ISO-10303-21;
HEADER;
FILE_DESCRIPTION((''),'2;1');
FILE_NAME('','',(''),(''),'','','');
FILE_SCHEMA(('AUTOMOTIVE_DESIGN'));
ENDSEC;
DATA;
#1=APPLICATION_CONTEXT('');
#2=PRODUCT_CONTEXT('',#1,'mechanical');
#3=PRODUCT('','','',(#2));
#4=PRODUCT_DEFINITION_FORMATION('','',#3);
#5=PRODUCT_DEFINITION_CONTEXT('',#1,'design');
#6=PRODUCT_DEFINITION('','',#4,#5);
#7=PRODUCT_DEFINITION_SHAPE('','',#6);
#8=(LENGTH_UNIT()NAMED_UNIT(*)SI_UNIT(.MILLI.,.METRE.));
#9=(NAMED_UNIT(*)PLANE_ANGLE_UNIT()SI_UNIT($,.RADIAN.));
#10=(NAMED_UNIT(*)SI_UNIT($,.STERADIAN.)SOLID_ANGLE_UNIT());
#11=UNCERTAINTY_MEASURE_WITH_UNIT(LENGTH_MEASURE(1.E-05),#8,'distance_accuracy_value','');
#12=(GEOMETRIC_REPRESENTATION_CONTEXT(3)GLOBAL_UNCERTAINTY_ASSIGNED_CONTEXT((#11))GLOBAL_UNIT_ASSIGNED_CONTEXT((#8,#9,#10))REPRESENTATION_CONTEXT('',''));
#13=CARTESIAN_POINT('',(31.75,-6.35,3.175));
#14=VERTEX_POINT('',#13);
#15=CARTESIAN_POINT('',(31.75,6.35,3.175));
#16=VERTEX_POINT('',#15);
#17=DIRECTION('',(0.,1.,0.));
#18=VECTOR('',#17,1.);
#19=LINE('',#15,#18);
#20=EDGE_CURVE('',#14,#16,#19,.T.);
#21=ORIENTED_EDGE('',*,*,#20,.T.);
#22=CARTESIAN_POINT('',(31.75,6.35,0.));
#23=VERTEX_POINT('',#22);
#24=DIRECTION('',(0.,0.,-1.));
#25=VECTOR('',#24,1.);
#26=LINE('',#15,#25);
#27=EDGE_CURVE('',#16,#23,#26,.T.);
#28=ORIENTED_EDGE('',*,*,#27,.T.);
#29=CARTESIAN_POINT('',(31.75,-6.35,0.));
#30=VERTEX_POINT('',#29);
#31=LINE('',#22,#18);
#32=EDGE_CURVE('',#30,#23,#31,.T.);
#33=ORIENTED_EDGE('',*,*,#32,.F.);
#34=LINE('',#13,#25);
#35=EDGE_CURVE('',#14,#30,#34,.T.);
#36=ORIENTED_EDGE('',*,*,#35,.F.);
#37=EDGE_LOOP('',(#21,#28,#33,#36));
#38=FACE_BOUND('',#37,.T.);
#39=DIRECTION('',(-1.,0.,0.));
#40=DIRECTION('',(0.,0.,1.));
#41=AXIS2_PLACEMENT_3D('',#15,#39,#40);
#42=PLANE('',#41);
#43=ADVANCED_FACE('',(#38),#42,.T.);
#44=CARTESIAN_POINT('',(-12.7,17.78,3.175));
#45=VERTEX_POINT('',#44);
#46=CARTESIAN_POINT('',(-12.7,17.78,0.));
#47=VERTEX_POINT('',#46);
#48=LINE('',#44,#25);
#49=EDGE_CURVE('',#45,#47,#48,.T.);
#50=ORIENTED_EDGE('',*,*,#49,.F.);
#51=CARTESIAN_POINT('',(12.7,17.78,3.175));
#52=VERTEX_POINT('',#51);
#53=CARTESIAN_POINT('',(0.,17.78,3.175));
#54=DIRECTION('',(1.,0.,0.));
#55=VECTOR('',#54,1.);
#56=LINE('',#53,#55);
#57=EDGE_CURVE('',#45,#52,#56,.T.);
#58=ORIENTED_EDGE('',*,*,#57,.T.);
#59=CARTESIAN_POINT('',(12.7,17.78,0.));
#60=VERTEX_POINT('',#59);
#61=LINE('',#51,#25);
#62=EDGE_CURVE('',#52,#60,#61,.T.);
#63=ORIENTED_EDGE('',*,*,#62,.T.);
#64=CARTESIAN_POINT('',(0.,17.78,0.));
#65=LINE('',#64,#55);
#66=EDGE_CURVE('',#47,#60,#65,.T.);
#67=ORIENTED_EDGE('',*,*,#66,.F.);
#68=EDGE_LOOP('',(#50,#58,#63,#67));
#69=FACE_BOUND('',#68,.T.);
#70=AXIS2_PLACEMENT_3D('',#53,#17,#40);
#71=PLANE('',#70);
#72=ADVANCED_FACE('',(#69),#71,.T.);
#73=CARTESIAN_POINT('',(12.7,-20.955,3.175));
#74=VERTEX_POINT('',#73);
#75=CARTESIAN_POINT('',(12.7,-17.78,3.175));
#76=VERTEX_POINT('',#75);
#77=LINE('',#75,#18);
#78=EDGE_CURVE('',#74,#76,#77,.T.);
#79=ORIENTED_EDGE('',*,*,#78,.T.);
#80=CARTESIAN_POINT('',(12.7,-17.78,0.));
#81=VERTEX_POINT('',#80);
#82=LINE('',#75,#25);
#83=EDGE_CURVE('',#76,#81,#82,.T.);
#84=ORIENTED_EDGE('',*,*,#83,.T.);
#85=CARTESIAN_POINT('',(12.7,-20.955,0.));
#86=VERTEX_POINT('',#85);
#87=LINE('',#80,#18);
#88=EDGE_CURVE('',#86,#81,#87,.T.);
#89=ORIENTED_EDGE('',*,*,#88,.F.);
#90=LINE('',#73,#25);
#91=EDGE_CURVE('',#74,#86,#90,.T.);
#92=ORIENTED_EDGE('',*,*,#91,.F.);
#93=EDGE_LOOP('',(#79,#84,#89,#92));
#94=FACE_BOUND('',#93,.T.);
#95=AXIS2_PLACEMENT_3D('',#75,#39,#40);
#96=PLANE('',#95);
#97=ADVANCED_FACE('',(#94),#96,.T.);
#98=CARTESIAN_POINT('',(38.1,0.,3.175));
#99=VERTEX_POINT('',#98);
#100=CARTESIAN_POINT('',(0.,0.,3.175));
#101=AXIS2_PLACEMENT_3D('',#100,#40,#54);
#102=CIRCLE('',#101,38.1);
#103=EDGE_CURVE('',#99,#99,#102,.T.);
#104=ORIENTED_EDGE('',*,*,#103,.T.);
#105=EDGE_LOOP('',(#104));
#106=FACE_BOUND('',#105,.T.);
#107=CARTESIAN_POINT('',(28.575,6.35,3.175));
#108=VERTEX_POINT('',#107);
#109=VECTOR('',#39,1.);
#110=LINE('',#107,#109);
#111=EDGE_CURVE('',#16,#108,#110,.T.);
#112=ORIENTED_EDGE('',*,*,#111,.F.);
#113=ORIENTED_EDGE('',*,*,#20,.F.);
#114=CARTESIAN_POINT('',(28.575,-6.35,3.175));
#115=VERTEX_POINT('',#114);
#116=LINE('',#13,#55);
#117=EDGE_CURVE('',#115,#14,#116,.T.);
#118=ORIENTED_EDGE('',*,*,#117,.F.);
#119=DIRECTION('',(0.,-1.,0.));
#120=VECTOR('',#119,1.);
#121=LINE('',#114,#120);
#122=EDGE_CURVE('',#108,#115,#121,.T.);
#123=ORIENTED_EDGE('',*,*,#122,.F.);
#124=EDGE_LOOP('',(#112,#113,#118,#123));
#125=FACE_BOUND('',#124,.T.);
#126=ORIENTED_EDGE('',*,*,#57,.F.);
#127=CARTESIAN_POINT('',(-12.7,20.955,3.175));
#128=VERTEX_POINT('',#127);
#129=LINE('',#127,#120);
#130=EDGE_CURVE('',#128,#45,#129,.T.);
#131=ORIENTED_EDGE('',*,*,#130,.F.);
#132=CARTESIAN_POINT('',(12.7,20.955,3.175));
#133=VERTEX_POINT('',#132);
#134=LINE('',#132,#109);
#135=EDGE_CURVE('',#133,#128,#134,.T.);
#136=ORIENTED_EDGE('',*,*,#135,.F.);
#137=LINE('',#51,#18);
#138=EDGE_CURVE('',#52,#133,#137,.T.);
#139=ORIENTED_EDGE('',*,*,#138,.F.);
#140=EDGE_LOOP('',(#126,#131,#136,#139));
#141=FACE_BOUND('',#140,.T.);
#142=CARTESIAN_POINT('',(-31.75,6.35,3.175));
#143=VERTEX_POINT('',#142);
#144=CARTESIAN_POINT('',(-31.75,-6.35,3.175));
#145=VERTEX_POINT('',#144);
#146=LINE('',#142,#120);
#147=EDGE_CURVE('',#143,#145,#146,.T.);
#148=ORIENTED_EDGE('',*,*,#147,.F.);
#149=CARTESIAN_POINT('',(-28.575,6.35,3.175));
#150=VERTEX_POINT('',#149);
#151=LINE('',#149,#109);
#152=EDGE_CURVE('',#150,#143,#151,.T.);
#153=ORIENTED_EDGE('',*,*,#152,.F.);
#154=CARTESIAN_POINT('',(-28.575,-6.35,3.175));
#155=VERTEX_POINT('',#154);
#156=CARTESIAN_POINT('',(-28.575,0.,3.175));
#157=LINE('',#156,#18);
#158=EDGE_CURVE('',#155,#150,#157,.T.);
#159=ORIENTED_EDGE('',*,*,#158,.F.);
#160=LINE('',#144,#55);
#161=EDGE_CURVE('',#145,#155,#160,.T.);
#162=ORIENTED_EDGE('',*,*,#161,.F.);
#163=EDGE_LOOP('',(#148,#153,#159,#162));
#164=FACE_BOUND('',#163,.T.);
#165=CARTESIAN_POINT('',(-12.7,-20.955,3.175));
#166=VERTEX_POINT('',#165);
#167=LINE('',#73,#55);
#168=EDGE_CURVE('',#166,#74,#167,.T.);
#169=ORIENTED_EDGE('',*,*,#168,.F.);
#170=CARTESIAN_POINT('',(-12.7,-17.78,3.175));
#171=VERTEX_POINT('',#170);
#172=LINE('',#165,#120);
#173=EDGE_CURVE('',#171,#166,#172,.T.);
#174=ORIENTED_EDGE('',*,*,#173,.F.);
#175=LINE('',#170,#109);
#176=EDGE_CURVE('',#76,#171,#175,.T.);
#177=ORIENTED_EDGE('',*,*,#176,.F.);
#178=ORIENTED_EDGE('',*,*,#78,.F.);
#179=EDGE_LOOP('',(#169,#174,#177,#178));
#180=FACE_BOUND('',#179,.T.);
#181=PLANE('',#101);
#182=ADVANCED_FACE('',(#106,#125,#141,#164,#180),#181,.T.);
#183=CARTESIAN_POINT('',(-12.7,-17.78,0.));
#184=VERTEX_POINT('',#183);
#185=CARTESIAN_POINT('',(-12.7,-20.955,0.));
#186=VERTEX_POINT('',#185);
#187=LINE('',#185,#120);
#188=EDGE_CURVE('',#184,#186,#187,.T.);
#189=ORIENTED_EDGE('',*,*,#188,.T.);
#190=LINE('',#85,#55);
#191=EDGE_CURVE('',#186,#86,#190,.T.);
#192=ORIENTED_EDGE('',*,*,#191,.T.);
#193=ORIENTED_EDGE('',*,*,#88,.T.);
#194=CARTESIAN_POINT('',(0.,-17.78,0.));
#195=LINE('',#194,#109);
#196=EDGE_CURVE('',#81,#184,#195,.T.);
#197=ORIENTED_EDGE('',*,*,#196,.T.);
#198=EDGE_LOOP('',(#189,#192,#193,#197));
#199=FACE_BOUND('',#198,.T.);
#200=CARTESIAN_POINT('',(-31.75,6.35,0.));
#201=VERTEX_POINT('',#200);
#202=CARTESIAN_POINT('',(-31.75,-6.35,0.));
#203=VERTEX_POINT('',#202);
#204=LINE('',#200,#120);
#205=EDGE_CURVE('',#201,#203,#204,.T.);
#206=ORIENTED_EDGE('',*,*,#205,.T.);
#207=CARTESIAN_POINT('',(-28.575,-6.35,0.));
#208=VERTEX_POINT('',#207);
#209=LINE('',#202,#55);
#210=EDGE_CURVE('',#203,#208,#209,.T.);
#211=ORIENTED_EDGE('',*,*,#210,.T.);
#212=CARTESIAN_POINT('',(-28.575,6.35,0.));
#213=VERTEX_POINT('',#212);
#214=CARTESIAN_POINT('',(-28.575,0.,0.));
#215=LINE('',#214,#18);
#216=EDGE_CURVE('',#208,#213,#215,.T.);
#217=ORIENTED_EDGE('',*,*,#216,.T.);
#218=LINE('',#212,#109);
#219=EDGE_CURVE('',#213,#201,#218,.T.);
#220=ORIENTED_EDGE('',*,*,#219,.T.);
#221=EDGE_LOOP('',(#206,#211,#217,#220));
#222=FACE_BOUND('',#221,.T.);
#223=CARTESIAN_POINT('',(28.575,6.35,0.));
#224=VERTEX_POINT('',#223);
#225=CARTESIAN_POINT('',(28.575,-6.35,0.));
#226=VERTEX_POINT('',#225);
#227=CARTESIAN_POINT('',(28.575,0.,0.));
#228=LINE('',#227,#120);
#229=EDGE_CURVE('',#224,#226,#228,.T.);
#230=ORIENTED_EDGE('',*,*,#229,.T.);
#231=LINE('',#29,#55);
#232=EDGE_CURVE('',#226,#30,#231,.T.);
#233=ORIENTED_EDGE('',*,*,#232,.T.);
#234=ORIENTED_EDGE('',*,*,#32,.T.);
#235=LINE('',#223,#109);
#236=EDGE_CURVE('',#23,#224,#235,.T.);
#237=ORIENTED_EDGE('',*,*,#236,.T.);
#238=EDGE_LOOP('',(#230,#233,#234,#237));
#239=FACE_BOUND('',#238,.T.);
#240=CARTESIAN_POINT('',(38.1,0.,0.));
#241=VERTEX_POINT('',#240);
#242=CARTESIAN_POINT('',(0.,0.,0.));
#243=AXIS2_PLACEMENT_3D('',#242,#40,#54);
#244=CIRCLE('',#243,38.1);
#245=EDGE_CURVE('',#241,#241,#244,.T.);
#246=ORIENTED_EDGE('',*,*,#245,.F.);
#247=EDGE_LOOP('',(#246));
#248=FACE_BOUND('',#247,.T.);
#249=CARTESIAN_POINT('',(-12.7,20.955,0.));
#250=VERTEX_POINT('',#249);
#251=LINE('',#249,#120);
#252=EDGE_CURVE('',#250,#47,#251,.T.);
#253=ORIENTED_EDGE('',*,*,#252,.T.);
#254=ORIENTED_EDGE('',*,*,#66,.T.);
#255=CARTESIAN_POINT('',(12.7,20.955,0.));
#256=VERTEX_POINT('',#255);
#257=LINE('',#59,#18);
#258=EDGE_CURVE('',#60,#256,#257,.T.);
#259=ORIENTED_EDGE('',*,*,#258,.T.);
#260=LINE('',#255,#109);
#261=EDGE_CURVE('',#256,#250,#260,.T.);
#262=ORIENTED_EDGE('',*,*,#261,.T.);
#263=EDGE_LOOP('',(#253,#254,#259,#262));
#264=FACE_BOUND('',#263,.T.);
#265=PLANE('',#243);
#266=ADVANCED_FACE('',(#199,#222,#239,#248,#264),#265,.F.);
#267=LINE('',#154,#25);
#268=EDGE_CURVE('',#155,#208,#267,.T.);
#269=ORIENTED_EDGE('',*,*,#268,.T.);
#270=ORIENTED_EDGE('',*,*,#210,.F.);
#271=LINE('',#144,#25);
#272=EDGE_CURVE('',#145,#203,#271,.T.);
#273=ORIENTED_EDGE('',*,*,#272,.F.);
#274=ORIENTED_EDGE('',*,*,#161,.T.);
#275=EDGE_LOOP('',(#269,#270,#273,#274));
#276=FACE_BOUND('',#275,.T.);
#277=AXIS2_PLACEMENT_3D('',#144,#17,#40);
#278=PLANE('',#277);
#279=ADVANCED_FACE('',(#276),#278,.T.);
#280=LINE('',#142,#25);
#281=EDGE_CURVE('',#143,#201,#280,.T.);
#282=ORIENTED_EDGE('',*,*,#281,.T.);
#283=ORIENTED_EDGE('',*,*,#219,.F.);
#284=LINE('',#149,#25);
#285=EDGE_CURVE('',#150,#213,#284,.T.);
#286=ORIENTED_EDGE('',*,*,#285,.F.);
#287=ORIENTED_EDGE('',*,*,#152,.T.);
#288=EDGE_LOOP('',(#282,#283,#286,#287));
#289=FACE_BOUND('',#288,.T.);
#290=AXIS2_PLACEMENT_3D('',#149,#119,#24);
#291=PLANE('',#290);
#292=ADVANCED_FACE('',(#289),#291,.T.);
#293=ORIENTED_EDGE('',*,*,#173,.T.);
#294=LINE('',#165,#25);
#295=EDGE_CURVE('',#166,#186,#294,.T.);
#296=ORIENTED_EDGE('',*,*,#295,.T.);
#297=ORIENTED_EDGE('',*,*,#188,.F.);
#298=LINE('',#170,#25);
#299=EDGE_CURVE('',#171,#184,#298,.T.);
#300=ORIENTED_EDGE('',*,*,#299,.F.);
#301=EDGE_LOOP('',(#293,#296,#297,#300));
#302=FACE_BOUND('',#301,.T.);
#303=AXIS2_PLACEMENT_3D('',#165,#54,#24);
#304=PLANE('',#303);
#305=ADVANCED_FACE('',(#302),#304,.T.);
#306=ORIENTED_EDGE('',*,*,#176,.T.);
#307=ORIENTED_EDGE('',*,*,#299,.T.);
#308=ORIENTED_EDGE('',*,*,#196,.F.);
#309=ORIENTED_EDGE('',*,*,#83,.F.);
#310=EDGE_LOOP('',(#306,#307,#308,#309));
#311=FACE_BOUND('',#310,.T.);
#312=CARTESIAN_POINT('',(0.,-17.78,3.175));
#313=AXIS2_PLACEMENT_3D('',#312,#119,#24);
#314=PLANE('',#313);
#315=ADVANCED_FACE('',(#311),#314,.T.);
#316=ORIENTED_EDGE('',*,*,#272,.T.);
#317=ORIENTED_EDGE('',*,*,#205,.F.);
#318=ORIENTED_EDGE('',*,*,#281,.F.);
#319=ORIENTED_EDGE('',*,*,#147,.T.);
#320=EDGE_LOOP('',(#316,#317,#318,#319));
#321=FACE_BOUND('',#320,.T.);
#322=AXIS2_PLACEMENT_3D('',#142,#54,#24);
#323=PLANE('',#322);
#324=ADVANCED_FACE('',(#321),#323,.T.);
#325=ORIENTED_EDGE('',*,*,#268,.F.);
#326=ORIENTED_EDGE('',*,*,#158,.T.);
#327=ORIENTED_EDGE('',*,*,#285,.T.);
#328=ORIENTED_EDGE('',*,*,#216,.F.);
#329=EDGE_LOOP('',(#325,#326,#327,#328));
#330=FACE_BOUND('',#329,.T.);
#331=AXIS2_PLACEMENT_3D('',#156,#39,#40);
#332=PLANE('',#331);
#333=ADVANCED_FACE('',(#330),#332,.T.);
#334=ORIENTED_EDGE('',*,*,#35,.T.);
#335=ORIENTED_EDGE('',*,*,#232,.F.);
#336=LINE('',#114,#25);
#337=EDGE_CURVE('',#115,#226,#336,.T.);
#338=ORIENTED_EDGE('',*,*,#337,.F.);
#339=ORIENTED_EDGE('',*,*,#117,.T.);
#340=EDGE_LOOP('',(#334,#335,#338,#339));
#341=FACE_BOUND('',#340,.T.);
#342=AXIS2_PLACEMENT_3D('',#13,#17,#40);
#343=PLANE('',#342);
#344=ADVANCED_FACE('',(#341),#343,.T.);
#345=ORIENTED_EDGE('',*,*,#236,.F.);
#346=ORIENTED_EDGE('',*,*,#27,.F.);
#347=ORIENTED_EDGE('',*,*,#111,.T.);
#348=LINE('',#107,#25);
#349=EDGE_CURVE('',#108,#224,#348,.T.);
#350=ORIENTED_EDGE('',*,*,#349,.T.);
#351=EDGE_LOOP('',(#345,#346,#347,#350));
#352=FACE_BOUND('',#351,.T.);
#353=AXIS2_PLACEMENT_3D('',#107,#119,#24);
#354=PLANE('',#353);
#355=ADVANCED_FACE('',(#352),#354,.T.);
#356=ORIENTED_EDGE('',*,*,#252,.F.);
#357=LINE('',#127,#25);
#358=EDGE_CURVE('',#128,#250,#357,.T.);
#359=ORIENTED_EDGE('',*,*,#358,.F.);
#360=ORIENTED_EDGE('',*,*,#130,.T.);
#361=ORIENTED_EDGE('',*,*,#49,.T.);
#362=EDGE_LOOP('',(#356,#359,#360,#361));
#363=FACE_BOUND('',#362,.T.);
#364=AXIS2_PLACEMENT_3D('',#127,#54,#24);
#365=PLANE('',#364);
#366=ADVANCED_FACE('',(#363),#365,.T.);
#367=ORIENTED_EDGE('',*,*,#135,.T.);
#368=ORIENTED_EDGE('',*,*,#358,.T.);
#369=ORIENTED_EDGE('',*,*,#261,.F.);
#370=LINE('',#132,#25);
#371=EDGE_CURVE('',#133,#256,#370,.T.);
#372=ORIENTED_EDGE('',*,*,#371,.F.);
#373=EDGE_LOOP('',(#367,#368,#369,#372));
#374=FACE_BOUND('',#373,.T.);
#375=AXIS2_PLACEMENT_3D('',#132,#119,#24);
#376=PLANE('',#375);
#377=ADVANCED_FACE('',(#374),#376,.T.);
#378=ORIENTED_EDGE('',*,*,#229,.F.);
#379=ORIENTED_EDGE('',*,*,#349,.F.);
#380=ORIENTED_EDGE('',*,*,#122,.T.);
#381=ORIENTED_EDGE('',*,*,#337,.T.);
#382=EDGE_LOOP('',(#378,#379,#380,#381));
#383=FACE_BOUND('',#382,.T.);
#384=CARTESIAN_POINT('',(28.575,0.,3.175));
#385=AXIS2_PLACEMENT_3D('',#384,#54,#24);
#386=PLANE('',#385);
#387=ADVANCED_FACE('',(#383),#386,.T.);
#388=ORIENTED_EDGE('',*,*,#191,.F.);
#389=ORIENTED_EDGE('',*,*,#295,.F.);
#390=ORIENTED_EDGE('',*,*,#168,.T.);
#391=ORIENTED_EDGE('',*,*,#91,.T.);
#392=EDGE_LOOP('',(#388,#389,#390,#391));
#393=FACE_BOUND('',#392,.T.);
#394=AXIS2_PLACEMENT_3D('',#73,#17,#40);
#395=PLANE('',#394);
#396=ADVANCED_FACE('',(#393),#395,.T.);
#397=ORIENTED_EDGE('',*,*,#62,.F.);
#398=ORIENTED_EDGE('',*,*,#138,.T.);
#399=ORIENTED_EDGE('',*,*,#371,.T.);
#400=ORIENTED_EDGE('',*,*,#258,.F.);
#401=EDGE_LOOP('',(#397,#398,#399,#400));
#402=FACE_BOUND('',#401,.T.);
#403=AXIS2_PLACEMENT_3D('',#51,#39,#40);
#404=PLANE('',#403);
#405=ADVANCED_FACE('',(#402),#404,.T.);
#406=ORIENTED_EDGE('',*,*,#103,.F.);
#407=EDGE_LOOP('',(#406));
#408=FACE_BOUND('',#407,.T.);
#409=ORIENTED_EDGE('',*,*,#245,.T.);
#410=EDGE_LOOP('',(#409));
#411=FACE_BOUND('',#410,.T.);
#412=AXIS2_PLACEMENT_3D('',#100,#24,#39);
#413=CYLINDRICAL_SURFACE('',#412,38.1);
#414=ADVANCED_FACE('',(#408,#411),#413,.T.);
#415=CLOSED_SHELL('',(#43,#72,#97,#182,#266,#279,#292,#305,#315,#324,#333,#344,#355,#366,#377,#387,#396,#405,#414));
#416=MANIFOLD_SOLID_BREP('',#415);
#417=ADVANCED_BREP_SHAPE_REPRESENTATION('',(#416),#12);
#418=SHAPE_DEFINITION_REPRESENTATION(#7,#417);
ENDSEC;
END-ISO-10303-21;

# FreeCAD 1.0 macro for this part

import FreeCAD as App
import Part
import Sketcher
Q = App.Units.Quantity


def add_polygon(sketch, points):
    """Adds a closed chain of lines whose ends are joined by coincident constraints."""
    first, n = sketch.GeometryCount, len(points)
    for a, b in zip(points, points[1:] + points[:1]):
        sketch.addGeometry(Part.LineSegment(App.Vector(*a, 0), App.Vector(*b, 0)), False)
    for i in range(n):
        sketch.addConstraint(Sketcher.Constraint("Coincident", first + i, 2, first + (i + 1) % n, 1))

doc = App.newDocument("Part")
body = doc.addObject("PartDesign::Body", "Body")

# Sketch on XY plane
sketch1 = body.newObject("Sketcher::SketchObject", "Sketch")
sketch1.AttachmentSupport = (doc.getObject("XY_Plane"), [""])
sketch1.MapMode = "FlatFace"
sketch1.addGeometry(Part.Circle(App.Vector(0, 0, 0), App.Vector(0, 0, 1), 38), False)
sketch1.addConstraint(Sketcher.Constraint("Coincident", 0, 3, -1, 1))
sketch1.addConstraint(Sketcher.Constraint("Diameter", 0, Q("3 in")))
pad1 = body.newObject("PartDesign::Pad", "Pad")
pad1.Profile = sketch1
pad1.Length = Q("0.125 in")

# Sketch on XY plane
sketch2 = body.newObject("Sketcher::SketchObject", "Sketch001")
sketch2.AttachmentSupport = (doc.getObject("XY_Plane"), [""])
sketch2.MapMode = "FlatFace"
add_polygon(sketch2, [(12.7, 17.8), (12.7, 21), (-12.7, 21), (-12.7, 17.8)])  # lines 0-3
add_polygon(sketch2, [(12.7, -17.8), (-12.7, -17.8), (-12.7, -21), (12.7, -21)])  # lines 4-7
add_polygon(sketch2, [(-28.6, -6.3), (-28.6, 6.3), (-31.8, 6.3), (-31.8, -6.3)])  # lines 8-11
add_polygon(sketch2, [(28.6, 6.3), (28.6, -6.3), (31.8, -6.3), (31.8, 6.3)])  # lines 12-15
sketch2.addConstraint(Sketcher.Constraint("Vertical", 0))
sketch2.addConstraint(Sketcher.Constraint("Horizontal", 1))
sketch2.addConstraint(Sketcher.Constraint("Vertical", 2))
sketch2.addConstraint(Sketcher.Constraint("Horizontal", 3))
sketch2.addConstraint(Sketcher.Constraint("Horizontal", 4))
sketch2.addConstraint(Sketcher.Constraint("Vertical", 5))
sketch2.addConstraint(Sketcher.Constraint("Horizontal", 6))
sketch2.addConstraint(Sketcher.Constraint("Vertical", 7))
sketch2.addConstraint(Sketcher.Constraint("Vertical", 8))
sketch2.addConstraint(Sketcher.Constraint("Horizontal", 9))
sketch2.addConstraint(Sketcher.Constraint("Vertical", 10))
sketch2.addConstraint(Sketcher.Constraint("Horizontal", 11))
sketch2.addConstraint(Sketcher.Constraint("Vertical", 12))
sketch2.addConstraint(Sketcher.Constraint("Horizontal", 13))
sketch2.addConstraint(Sketcher.Constraint("Vertical", 14))
sketch2.addConstraint(Sketcher.Constraint("Horizontal", 15))
sketch2.addConstraint(Sketcher.Constraint("Symmetric", 3, 2, 4, 2, -1, 1))
sketch2.addConstraint(Sketcher.Constraint("Symmetric", 1, 2, 6, 2, -1, 1))
sketch2.addConstraint(Sketcher.Constraint("Symmetric", 8, 2, 12, 2, -1, 1))
sketch2.addConstraint(Sketcher.Constraint("Symmetric", 10, 2, 14, 2, -1, 1))
sketch2.addConstraint(Sketcher.Constraint("Horizontal", 11, 2, 12, 2))
sketch2.addConstraint(Sketcher.Constraint("Vertical", 2, 2, 4, 2))
sketch2.addConstraint(Sketcher.Constraint("Equal", 15, 0))
sketch2.addConstraint(Sketcher.Constraint("DistanceX", 1, 2, 1, 1, Q("1 in")))
sketch2.addConstraint(Sketcher.Constraint("DistanceY", 8, 1, 8, 2, Q("0.5 in")))
sketch2.addConstraint(Sketcher.Constraint("DistanceY", -1, 1, 2, 2, Q("0.7 in")))
sketch2.addConstraint(Sketcher.Constraint("DistanceX", 9, 2, 9, 1, Q("0.125 in")))
sketch2.addConstraint(Sketcher.Constraint("DistanceX", 9, 2, -1, 1, Q("1.25 in")))
pocket1 = body.newObject("PartDesign::Pocket", "Pocket")
pocket1.Profile = sketch2
pocket1.Length = Q("0.125 in")
pocket1.Reversed = True

doc.recompute()
